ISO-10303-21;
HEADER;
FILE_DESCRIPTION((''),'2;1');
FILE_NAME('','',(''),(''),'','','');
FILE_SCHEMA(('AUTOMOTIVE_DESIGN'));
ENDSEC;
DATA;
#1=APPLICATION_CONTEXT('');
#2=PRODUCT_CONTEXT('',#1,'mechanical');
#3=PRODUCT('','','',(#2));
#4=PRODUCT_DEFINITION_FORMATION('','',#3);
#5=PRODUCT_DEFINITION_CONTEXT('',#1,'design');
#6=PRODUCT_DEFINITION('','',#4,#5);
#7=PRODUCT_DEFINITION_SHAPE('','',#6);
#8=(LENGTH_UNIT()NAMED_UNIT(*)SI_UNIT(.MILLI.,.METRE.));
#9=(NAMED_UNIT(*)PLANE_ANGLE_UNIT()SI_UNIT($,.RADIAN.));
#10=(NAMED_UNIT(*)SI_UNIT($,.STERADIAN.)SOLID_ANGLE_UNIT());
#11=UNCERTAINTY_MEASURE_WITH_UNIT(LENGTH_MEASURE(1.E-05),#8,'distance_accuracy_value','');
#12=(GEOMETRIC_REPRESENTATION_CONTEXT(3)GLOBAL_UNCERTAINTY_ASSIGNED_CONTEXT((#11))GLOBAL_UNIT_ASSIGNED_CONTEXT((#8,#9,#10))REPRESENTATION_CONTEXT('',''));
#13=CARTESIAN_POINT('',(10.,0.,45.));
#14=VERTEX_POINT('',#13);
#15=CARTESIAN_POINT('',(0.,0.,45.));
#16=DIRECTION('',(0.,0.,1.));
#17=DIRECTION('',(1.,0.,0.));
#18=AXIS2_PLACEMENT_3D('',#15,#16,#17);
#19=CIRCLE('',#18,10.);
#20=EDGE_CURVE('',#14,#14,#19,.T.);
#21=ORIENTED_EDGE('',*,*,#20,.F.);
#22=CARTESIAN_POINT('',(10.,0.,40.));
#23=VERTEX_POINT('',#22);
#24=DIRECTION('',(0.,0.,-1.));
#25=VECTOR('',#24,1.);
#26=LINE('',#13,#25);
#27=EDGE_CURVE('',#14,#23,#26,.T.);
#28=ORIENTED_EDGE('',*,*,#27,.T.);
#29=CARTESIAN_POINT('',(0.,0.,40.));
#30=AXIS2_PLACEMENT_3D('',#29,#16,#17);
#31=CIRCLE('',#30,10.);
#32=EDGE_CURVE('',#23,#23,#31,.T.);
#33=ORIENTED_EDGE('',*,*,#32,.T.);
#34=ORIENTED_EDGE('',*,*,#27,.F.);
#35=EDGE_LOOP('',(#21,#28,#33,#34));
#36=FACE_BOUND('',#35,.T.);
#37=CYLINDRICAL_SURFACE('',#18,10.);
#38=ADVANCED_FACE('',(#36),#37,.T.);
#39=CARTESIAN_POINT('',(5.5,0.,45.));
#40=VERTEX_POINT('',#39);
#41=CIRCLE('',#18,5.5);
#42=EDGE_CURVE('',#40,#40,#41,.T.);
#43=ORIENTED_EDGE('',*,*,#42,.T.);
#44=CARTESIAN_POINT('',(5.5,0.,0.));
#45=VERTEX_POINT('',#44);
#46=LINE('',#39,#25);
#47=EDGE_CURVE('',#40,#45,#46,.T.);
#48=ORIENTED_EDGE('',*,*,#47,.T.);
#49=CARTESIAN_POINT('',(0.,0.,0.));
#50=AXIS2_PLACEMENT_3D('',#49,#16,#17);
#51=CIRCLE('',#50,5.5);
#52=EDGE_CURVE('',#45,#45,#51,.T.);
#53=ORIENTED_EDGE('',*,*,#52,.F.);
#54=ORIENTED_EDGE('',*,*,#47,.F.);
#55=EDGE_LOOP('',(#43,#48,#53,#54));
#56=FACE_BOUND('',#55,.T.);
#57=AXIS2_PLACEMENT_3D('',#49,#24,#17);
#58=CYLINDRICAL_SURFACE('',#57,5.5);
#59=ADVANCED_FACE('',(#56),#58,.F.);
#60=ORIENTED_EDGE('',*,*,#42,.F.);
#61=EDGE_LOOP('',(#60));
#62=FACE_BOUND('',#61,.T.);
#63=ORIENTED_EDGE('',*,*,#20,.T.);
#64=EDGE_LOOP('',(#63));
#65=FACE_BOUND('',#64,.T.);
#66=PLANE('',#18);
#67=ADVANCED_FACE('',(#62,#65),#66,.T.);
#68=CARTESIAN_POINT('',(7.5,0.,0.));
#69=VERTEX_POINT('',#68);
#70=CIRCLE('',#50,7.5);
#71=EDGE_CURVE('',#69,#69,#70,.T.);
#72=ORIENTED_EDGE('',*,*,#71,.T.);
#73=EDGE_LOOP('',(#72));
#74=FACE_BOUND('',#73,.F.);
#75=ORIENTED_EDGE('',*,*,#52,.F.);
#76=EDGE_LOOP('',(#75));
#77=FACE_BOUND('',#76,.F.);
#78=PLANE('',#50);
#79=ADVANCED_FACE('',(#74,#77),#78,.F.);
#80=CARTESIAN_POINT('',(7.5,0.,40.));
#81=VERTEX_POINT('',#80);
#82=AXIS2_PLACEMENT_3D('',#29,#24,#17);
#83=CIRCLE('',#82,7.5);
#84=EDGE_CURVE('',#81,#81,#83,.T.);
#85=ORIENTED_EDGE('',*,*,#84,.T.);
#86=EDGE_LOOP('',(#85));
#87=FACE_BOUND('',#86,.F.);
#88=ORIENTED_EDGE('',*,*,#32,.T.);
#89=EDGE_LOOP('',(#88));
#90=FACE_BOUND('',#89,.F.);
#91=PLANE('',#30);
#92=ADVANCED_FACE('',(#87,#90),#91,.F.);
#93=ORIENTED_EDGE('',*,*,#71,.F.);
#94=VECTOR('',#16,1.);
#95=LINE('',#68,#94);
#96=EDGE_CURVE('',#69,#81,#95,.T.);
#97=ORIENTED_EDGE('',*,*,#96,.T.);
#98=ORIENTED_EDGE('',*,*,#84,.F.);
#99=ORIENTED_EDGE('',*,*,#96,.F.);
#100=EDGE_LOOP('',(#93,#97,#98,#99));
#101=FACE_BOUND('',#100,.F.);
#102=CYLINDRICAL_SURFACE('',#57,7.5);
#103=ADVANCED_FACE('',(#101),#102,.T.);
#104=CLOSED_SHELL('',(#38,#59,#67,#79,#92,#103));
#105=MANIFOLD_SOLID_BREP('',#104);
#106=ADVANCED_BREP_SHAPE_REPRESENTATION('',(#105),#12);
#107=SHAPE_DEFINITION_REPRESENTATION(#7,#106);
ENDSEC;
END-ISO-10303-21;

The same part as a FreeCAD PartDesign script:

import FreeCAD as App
import Part
import Sketcher

doc = App.newDocument("Part")
body = doc.addObject("PartDesign::Body", "Body")

# Sketch on XY plane
sketch1 = body.newObject("Sketcher::SketchObject", "Sketch")
sketch1.AttachmentSupport = (doc.getObject("XY_Plane"), [""])
sketch1.MapMode = "FlatFace"
sketch1.addGeometry(Part.Circle(App.Vector(0, 0, 0), App.Vector(0, 0, 1), 8), False)
sketch1.addGeometry(Part.Circle(App.Vector(0, 0, 0), App.Vector(0, 0, 1), 6), False)
sketch1.addConstraint(Sketcher.Constraint("Coincident", 0, 3, -1, 1))
sketch1.addConstraint(Sketcher.Constraint("Coincident", 1, 3, -1, 1))
sketch1.addConstraint(Sketcher.Constraint("Diameter", 0, 15.0))
sketch1.addConstraint(Sketcher.Constraint("Diameter", 1, 11.0))
pad1 = body.newObject("PartDesign::Pad", "Pad")
pad1.Profile = sketch1
pad1.Length = 45

# Sketch on XY plane
sketch2 = body.newObject("Sketcher::SketchObject", "Sketch001")
sketch2.AttachmentSupport = (doc.getObject("XY_Plane"), [""])
sketch2.MapMode = "FlatFace"
sketch2.AttachmentOffset = App.Placement(App.Vector(0, 0, 45), App.Rotation())
sketch2.addGeometry(Part.Circle(App.Vector(0, 0, 0), App.Vector(0, 0, 1), 10), False)
sketch2.addGeometry(Part.Circle(App.Vector(0, 0, 0), App.Vector(0, 0, 1), 6), False)
sketch2.addConstraint(Sketcher.Constraint("Coincident", 0, 3, -1, 1))
sketch2.addConstraint(Sketcher.Constraint("Coincident", 1, 3, -1, 1))
sketch2.addConstraint(Sketcher.Constraint("Diameter", 0, 20.0))
sketch2.addConstraint(Sketcher.Constraint("Diameter", 1, 11.0))
pad2 = body.newObject("PartDesign::Pad", "Pad001")
pad2.Profile = sketch2
pad2.Length = 5
pad2.Reversed = True

doc.recompute()
